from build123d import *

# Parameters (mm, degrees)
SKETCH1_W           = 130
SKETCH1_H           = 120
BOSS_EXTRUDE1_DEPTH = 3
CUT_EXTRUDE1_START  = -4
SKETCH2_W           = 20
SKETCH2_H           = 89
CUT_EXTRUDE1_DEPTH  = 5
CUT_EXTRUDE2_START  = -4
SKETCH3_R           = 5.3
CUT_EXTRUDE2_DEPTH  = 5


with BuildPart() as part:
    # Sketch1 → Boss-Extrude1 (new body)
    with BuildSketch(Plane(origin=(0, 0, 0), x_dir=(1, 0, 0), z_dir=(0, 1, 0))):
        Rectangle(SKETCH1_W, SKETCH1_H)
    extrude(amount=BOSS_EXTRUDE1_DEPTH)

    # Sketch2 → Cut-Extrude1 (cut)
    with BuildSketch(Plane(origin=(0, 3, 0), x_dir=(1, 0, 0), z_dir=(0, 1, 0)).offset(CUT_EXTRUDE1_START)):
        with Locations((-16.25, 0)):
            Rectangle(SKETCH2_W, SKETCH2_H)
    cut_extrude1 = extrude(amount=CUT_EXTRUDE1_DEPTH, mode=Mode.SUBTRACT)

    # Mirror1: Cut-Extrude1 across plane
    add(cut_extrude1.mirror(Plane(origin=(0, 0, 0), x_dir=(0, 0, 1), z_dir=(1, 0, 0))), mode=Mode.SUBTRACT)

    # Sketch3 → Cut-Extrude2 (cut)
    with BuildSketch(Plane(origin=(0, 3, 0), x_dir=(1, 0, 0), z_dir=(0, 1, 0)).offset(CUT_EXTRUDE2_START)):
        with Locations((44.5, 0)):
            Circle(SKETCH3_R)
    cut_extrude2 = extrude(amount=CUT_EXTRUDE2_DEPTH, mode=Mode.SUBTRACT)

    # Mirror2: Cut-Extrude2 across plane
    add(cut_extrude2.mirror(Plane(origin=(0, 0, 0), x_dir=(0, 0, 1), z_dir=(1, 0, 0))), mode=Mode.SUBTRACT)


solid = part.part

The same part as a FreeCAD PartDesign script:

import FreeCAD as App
import Part
import Sketcher

V = App.Vector

doc = App.newDocument("Part")
body = doc.addObject("PartDesign::Body", "Body")

# Sketch on XZ plane
sketch1 = body.newObject("Sketcher::SketchObject", "Sketch")
sketch1.AttachmentSupport = (doc.getObject("XZ_Plane"), [""])
sketch1.MapMode = "FlatFace"
sketch1.addGeometry([
    Part.LineSegment(V(-65, -60, 0), V(-65, 60, 0)),
    Part.LineSegment(V(-65, 60, 0), V(65, 60, 0)),
    Part.LineSegment(V(65, 60, 0), V(65, -60, 0)),
    Part.LineSegment(V(65, -60, 0), V(-65, -60, 0)),
], False)
sketch1.addConstraint([
    Sketcher.Constraint("Coincident", 0, 2, 1, 1),
    Sketcher.Constraint("Coincident", 1, 2, 2, 1),
    Sketcher.Constraint("Coincident", 2, 2, 3, 1),
    Sketcher.Constraint("Coincident", 3, 2, 0, 1),
    Sketcher.Constraint("Vertical", 0),
    Sketcher.Constraint("Horizontal", 1),
    Sketcher.Constraint("Vertical", 2),
    Sketcher.Constraint("Horizontal", 3),
    Sketcher.Constraint("Symmetric", 0, 2, 2, 2, -1, 1),
    Sketcher.Constraint("DistanceX", 1, 1, 1, 2, 130.0),
    Sketcher.Constraint("DistanceY", 0, 1, 0, 2, 120.0),
])
pad1 = body.newObject("PartDesign::Pad", "Pad")
pad1.Profile = sketch1
pad1.Length = 3
pad1.Reversed = True

# Sketch on XZ plane
sketch2 = body.newObject("Sketcher::SketchObject", "Sketch001")
sketch2.AttachmentSupport = (doc.getObject("XZ_Plane"), [""])
sketch2.MapMode = "FlatFace"
sketch2.AttachmentOffset = App.Placement(V(0, 0, 1), App.Rotation())
sketch2.addGeometry([
    Part.LineSegment(V(-26.25, -44.5, 0), V(-26.25, 44.5, 0)),
    Part.LineSegment(V(-26.25, 44.5, 0), V(-6.25, 44.5, 0)),
    Part.LineSegment(V(-6.25, 44.5, 0), V(-6.25, -44.5, 0)),
    Part.LineSegment(V(-6.25, -44.5, 0), V(-26.25, -44.5, 0)),
], False)
sketch2.addConstraint([
    Sketcher.Constraint("Coincident", 0, 2, 1, 1),
    Sketcher.Constraint("Coincident", 1, 2, 2, 1),
    Sketcher.Constraint("Coincident", 2, 2, 3, 1),
    Sketcher.Constraint("Coincident", 3, 2, 0, 1),
    Sketcher.Constraint("Vertical", 0),
    Sketcher.Constraint("Horizontal", 1),
    Sketcher.Constraint("Vertical", 2),
    Sketcher.Constraint("Horizontal", 3),
    Sketcher.Constraint("DistanceX", 1, 1, 1, 2, 20.0),
    Sketcher.Constraint("DistanceY", 0, 1, 0, 2, 89.0),
    Sketcher.Constraint("DistanceY", -1, 1, 0, 2, 44.5),
    Sketcher.Constraint("DistanceX", 0, 2, -1, 1, 26.25),
])
pocket1 = body.newObject("PartDesign::Pocket", "Pocket")
pocket1.Profile = sketch2
pocket1.Length = 5
doc.recompute()

mirrored = body.newObject("PartDesign::Mirrored", "Mirrored")
mirrored.Originals = [pocket1]
mirrored.MirrorPlane = (doc.getObject("YZ_Plane"), [""])
body.Tip = mirrored

# Sketch on XZ plane
sketch3 = body.newObject("Sketcher::SketchObject", "Sketch002")
sketch3.AttachmentSupport = (doc.getObject("XZ_Plane"), [""])
sketch3.MapMode = "FlatFace"
sketch3.AttachmentOffset = App.Placement(V(0, 0, 1), App.Rotation())
sketch3.addGeometry(Part.Circle(V(44.5, 0, 0), V(0, 0, 1), 5.3), False)
sketch3.addConstraint([
    Sketcher.Constraint("PointOnObject", 0, 3, -1),
    Sketcher.Constraint("Diameter", 0, 10.6),
    Sketcher.Constraint("DistanceX", -1, 1, 0, 3, 44.5),
])
pocket2 = body.newObject("PartDesign::Pocket", "Pocket001")
pocket2.Profile = sketch3
pocket2.Length = 5
doc.recompute()

mirrored2 = body.newObject("PartDesign::Mirrored", "Mirrored001")
mirrored2.Originals = [pocket2]
mirrored2.MirrorPlane = (doc.getObject("YZ_Plane"), [""])
body.Tip = mirrored2

doc.recompute()
